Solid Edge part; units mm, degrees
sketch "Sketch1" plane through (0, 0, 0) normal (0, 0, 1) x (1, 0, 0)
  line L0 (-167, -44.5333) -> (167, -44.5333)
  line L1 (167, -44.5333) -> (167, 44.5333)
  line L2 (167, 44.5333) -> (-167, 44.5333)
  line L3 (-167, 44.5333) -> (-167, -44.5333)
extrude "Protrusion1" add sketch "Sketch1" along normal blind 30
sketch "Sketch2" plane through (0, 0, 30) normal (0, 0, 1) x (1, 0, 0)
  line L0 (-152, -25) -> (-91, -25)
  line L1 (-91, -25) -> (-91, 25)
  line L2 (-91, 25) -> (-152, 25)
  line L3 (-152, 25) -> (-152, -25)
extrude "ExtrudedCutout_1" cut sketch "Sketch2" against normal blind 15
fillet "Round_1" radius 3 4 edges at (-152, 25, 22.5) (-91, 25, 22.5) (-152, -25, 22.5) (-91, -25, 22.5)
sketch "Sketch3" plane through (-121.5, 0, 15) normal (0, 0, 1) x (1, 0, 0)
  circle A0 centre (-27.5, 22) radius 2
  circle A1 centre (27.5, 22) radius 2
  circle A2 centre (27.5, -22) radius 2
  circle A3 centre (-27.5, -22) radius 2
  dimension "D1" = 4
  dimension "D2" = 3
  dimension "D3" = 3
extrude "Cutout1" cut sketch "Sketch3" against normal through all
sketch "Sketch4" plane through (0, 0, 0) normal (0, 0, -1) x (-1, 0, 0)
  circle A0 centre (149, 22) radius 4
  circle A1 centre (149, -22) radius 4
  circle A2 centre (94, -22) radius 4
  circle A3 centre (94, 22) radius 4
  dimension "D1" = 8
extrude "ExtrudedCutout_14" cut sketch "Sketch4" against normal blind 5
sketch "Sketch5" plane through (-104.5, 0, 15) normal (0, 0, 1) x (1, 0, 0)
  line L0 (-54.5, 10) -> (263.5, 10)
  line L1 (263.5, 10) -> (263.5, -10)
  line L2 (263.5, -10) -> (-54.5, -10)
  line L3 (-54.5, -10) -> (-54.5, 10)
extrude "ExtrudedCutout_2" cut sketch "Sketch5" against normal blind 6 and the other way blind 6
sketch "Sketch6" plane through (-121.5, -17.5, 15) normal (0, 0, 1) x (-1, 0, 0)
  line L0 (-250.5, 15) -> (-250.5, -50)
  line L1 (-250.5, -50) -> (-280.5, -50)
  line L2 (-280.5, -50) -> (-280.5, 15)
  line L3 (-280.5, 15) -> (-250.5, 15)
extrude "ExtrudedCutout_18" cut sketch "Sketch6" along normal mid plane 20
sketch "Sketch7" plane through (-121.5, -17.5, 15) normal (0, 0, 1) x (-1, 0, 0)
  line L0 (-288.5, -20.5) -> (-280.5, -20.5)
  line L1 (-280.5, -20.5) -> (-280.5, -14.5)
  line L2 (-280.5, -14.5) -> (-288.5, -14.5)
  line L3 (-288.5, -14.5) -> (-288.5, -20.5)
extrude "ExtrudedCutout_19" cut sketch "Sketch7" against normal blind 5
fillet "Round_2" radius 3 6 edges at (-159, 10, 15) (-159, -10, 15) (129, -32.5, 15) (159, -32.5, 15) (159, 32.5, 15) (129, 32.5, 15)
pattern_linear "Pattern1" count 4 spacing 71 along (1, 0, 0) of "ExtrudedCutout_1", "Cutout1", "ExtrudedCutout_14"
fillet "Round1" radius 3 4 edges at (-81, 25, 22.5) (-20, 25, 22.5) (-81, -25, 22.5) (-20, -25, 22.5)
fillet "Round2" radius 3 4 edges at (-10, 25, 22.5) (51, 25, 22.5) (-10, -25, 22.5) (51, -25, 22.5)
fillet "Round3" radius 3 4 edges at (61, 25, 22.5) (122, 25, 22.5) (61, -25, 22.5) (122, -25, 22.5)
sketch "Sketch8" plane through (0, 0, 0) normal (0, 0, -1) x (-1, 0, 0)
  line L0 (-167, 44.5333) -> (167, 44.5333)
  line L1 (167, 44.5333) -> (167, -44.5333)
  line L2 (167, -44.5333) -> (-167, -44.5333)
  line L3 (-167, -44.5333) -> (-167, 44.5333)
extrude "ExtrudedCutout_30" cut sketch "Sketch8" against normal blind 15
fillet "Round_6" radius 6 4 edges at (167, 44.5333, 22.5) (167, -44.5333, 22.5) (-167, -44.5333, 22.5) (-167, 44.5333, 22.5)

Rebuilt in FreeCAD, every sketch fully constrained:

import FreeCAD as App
import Part
import Sketcher

V = App.Vector


def edges_at(feature, points):
    """Names of the edges that pass closest to the given points."""
    edges = feature.Shape.Edges
    near = lambda p: min(range(len(edges)), key=lambda i: edges[i].distToShape(Part.Vertex(*p))[0])
    return sorted({f"Edge{near(p) + 1}" for p in points})

doc = App.newDocument("Part")
body = doc.addObject("PartDesign::Body", "Body")

# Sketch on XY plane
sketch1 = body.newObject("Sketcher::SketchObject", "Sketch")
sketch1.AttachmentSupport = (doc.getObject("XY_Plane"), [""])
sketch1.MapMode = "FlatFace"
sketch1.addGeometry([
    Part.LineSegment(V(-167, 45, 0), V(-167, -45, 0)),
    Part.LineSegment(V(-167, -45, 0), V(167, -45, 0)),
    Part.LineSegment(V(167, -45, 0), V(167, 45, 0)),
    Part.LineSegment(V(167, 45, 0), V(-167, 45, 0)),
], False)
sketch1.addConstraint([
    Sketcher.Constraint("Coincident", 0, 2, 1, 1),
    Sketcher.Constraint("Coincident", 1, 2, 2, 1),
    Sketcher.Constraint("Coincident", 2, 2, 3, 1),
    Sketcher.Constraint("Coincident", 3, 2, 0, 1),
    Sketcher.Constraint("Vertical", 0),
    Sketcher.Constraint("Horizontal", 1),
    Sketcher.Constraint("Vertical", 2),
    Sketcher.Constraint("Horizontal", 3),
    Sketcher.Constraint("Symmetric", 0, 2, 2, 2, -1, 1),
    Sketcher.Constraint("DistanceX", 1, 1, 1, 2, 334.0),
    Sketcher.Constraint("DistanceY", 0, 2, 0, 1, 89.0666),
])
pad1 = body.newObject("PartDesign::Pad", "Pad")
pad1.Profile = sketch1
pad1.Length = 30

# Sketch on XY plane
sketch2 = body.newObject("Sketcher::SketchObject", "Sketch001")
sketch2.AttachmentSupport = (doc.getObject("XY_Plane"), [""])
sketch2.MapMode = "FlatFace"
sketch2.AttachmentOffset = App.Placement(V(0, 0, 30), App.Rotation())
sketch2.addGeometry([
    Part.LineSegment(V(-152, 25, 0), V(-152, -25, 0)),
    Part.LineSegment(V(-152, -25, 0), V(-91, -25, 0)),
    Part.LineSegment(V(-91, -25, 0), V(-91, 25, 0)),
    Part.LineSegment(V(-91, 25, 0), V(-152, 25, 0)),
], False)
sketch2.addConstraint([
    Sketcher.Constraint("Coincident", 0, 2, 1, 1),
    Sketcher.Constraint("Coincident", 1, 2, 2, 1),
    Sketcher.Constraint("Coincident", 2, 2, 3, 1),
    Sketcher.Constraint("Coincident", 3, 2, 0, 1),
    Sketcher.Constraint("Vertical", 0),
    Sketcher.Constraint("Horizontal", 1),
    Sketcher.Constraint("Vertical", 2),
    Sketcher.Constraint("Horizontal", 3),
    Sketcher.Constraint("DistanceX", 1, 1, 1, 2, 61.0),
    Sketcher.Constraint("DistanceY", 0, 2, 0, 1, 50.0),
    Sketcher.Constraint("DistanceX", 0, 2, -1, 1, 152.0),
    Sketcher.Constraint("DistanceY", 0, 2, -1, 1, 25.0),
])
pocket1 = body.newObject("PartDesign::Pocket", "Pocket")
pocket1.Profile = sketch2
pocket1.Length = 15
doc.recompute()

fillet = body.newObject("PartDesign::Fillet", "Fillet")
fillet.Base = (pocket1, edges_at(pocket1, [
    (-152, 25, 22.5),
    (-91, 25, 22.5),
    (-152, -25, 22.5),
    (-91, -25, 22.5),
]))
fillet.Radius = 3

# Sketch on XY plane
sketch3 = body.newObject("Sketcher::SketchObject", "Sketch002")
sketch3.AttachmentSupport = (doc.getObject("XY_Plane"), [""])
sketch3.MapMode = "FlatFace"
sketch3.AttachmentOffset = App.Placement(V(0, 0, 15), App.Rotation())
sketch3.addGeometry([
    Part.Circle(V(-149, 22, 0), V(0, 0, 1), 2),
    Part.Circle(V(-94, 22, 0), V(0, 0, 1), 2),
    Part.Circle(V(-94, -22, 0), V(0, 0, 1), 2),
    Part.Circle(V(-149, -22, 0), V(0, 0, 1), 2),
], False)
sketch3.addConstraint([
    Sketcher.Constraint("Equal", 0, 1),
    Sketcher.Constraint("Equal", 1, 2),
    Sketcher.Constraint("Equal", 2, 3),
    Sketcher.Constraint("Symmetric", 1, 3, 2, 3, -1),
    Sketcher.Constraint("Symmetric", 0, 3, 3, 3, -1),
    Sketcher.Constraint("Horizontal", 0, 3, 1, 3),
    Sketcher.Constraint("Diameter", 0, 4.0),
    Sketcher.Constraint("DistanceX", 0, 3, -1, 1, 149.0),
    Sketcher.Constraint("DistanceY", -1, 1, 0, 3, 22.0),
    Sketcher.Constraint("DistanceX", 1, 3, -1, 1, 94.0),
])
pocket2 = body.newObject("PartDesign::Pocket", "Pocket001")
pocket2.Profile = sketch3
pocket2.Type = "ThroughAll"

# Sketch on XY plane
sketch4 = body.newObject("Sketcher::SketchObject", "Sketch003")
sketch4.AttachmentSupport = (doc.getObject("XY_Plane"), [""])
sketch4.MapMode = "FlatFace"
sketch4.addGeometry([
    Part.Circle(V(-149, 22, 0), V(0, 0, 1), 4),
    Part.Circle(V(-149, -22, 0), V(0, 0, 1), 4),
    Part.Circle(V(-94, -22, 0), V(0, 0, 1), 4),
    Part.Circle(V(-94, 22, 0), V(0, 0, 1), 4),
], False)
sketch4.addConstraint([
    Sketcher.Constraint("Equal", 0, 1),
    Sketcher.Constraint("Equal", 1, 2),
    Sketcher.Constraint("Equal", 2, 3),
    Sketcher.Constraint("Symmetric", 0, 3, 1, 3, -1),
    Sketcher.Constraint("Symmetric", 2, 3, 3, 3, -1),
    Sketcher.Constraint("Horizontal", 1, 3, 2, 3),
    Sketcher.Constraint("Diameter", 0, 8.0),
    Sketcher.Constraint("DistanceX", 0, 3, -1, 1, 149.0),
    Sketcher.Constraint("DistanceY", -1, 1, 0, 3, 22.0),
    Sketcher.Constraint("DistanceX", 2, 3, -1, 1, 94.0),
])
pocket3 = body.newObject("PartDesign::Pocket", "Pocket002")
pocket3.Profile = sketch4
pocket3.Length = 5
pocket3.Reversed = True

# Sketch on XY plane
sketch5 = body.newObject("Sketcher::SketchObject", "Sketch004")
sketch5.AttachmentSupport = (doc.getObject("XY_Plane"), [""])
sketch5.MapMode = "FlatFace"
sketch5.AttachmentOffset = App.Placement(V(0, 0, 15), App.Rotation())
sketch5.addGeometry([
    Part.LineSegment(V(159, 10, 0), V(-159, 10, 0)),
    Part.LineSegment(V(-159, 10, 0), V(-159, -10, 0)),
    Part.LineSegment(V(-159, -10, 0), V(159, -10, 0)),
    Part.LineSegment(V(159, -10, 0), V(159, 10, 0)),
], False)
sketch5.addConstraint([
    Sketcher.Constraint("Coincident", 0, 2, 1, 1),
    Sketcher.Constraint("Coincident", 1, 2, 2, 1),
    Sketcher.Constraint("Coincident", 2, 2, 3, 1),
    Sketcher.Constraint("Coincident", 3, 2, 0, 1),
    Sketcher.Constraint("Horizontal", 0),
    Sketcher.Constraint("Vertical", 1),
    Sketcher.Constraint("Horizontal", 2),
    Sketcher.Constraint("Vertical", 3),
    Sketcher.Constraint("Symmetric", 0, 2, 2, 2, -1, 1),
    Sketcher.Constraint("DistanceX", 0, 2, 0, 1, 318.0),
    Sketcher.Constraint("DistanceY", 1, 2, 1, 1, 20.0),
])
pocket4 = body.newObject("PartDesign::Pocket", "Pocket003")
pocket4.Profile = sketch5
pocket4.Type = "TwoLengths"
pocket4.Length = 6
pocket4.Length2 = 6

# Sketch on XY plane
sketch6 = body.newObject("Sketcher::SketchObject", "Sketch005")
sketch6.AttachmentSupport = (doc.getObject("XY_Plane"), [""])
sketch6.MapMode = "FlatFace"
sketch6.AttachmentOffset = App.Placement(V(0, 0, 15), App.Rotation())
sketch6.addGeometry([
    Part.LineSegment(V(129, 32, 0), V(129, -32, 0)),
    Part.LineSegment(V(129, -32, 0), V(159, -32, 0)),
    Part.LineSegment(V(159, -32, 0), V(159, 32, 0)),
    Part.LineSegment(V(159, 32, 0), V(129, 32, 0)),
], False)
sketch6.addConstraint([
    Sketcher.Constraint("Coincident", 0, 2, 1, 1),
    Sketcher.Constraint("Coincident", 1, 2, 2, 1),
    Sketcher.Constraint("Coincident", 2, 2, 3, 1),
    Sketcher.Constraint("Coincident", 3, 2, 0, 1),
    Sketcher.Constraint("Vertical", 0),
    Sketcher.Constraint("Horizontal", 1),
    Sketcher.Constraint("Vertical", 2),
    Sketcher.Constraint("Horizontal", 3),
    Sketcher.Constraint("DistanceX", 1, 1, 1, 2, 30.0),
    Sketcher.Constraint("DistanceY", 0, 2, 0, 1, 65.0),
    Sketcher.Constraint("DistanceX", -1, 1, 0, 2, 129.0),
    Sketcher.Constraint("DistanceY", 0, 2, -1, 1, 32.5),
])
pocket5 = body.newObject("PartDesign::Pocket", "Pocket004")
pocket5.Profile = sketch6
pocket5.Length = 20
pocket5.Midplane = True

# Sketch on XY plane
sketch7 = body.newObject("Sketcher::SketchObject", "Sketch006")
sketch7.AttachmentSupport = (doc.getObject("XY_Plane"), [""])
sketch7.MapMode = "FlatFace"
sketch7.AttachmentOffset = App.Placement(V(0, 0, 15), App.Rotation())
sketch7.addGeometry([
    Part.LineSegment(V(167, -3, 0), V(167, 3, 0)),
    Part.LineSegment(V(167, 3, 0), V(159, 3, 0)),
    Part.LineSegment(V(159, 3, 0), V(159, -3, 0)),
    Part.LineSegment(V(159, -3, 0), V(167, -3, 0)),
], False)
sketch7.addConstraint([
    Sketcher.Constraint("Coincident", 0, 2, 1, 1),
    Sketcher.Constraint("Coincident", 1, 2, 2, 1),
    Sketcher.Constraint("Coincident", 2, 2, 3, 1),
    Sketcher.Constraint("Coincident", 3, 2, 0, 1),
    Sketcher.Constraint("Vertical", 0),
    Sketcher.Constraint("Horizontal", 1),
    Sketcher.Constraint("Vertical", 2),
    Sketcher.Constraint("Horizontal", 3),
    Sketcher.Constraint("DistanceX", 1, 2, 1, 1, 8.0),
    Sketcher.Constraint("DistanceY", 0, 1, 0, 2, 6.0),
    Sketcher.Constraint("DistanceX", -1, 1, 0, 2, 167.0),
    Sketcher.Constraint("DistanceY", -1, 1, 0, 2, 3.0),
])
pocket6 = body.newObject("PartDesign::Pocket", "Pocket005")
pocket6.Profile = sketch7
pocket6.Length = 5
doc.recompute()

fillet2 = body.newObject("PartDesign::Fillet", "Fillet001")
fillet2.Base = (pocket6, edges_at(pocket6, [
    (-159, 10, 15),
    (-159, -10, 15),
    (129, -32.5, 15),
    (159, -32.5, 15),
    (159, 32.5, 15),
    (129, 32.5, 15),
]))
fillet2.Radius = 3
doc.recompute()

linearpattern = body.newObject("PartDesign::LinearPattern", "LinearPattern")
linearpattern.Originals = [pocket1, pocket2, pocket3]
linearpattern.Direction = (doc.getObject("X_Axis"), [""])
linearpattern.Mode = "offset"
linearpattern.Offset = 71
linearpattern.Occurrences = 4
body.Tip = linearpattern
doc.recompute()

fillet3 = body.newObject("PartDesign::Fillet", "Fillet002")
fillet3.Base = (linearpattern, edges_at(linearpattern, [
    (-81, 25, 22.5),
    (-20, 25, 22.5),
    (-81, -25, 22.5),
    (-20, -25, 22.5),
]))
fillet3.Radius = 3
doc.recompute()

fillet4 = body.newObject("PartDesign::Fillet", "Fillet003")
fillet4.Base = (fillet3, edges_at(fillet3, [
    (-10, 25, 22.5),
    (51, 25, 22.5),
    (-10, -25, 22.5),
    (51, -25, 22.5),
]))
fillet4.Radius = 3
doc.recompute()

fillet5 = body.newObject("PartDesign::Fillet", "Fillet004")
fillet5.Base = (fillet4, edges_at(fillet4, [
    (61, 25, 22.5),
    (122, 25, 22.5),
    (61, -25, 22.5),
    (122, -25, 22.5),
]))
fillet5.Radius = 3

# Sketch on XY plane
sketch8 = body.newObject("Sketcher::SketchObject", "Sketch007")
sketch8.AttachmentSupport = (doc.getObject("XY_Plane"), [""])
sketch8.MapMode = "FlatFace"
sketch8.addGeometry([
    Part.LineSegment(V(-167, 45, 0), V(167, 45, 0)),
    Part.LineSegment(V(167, 45, 0), V(167, -45, 0)),
    Part.LineSegment(V(167, -45, 0), V(-167, -45, 0)),
    Part.LineSegment(V(-167, -45, 0), V(-167, 45, 0)),
], False)
sketch8.addConstraint([
    Sketcher.Constraint("Coincident", 0, 2, 1, 1),
    Sketcher.Constraint("Coincident", 1, 2, 2, 1),
    Sketcher.Constraint("Coincident", 2, 2, 3, 1),
    Sketcher.Constraint("Coincident", 3, 2, 0, 1),
    Sketcher.Constraint("Horizontal", 0),
    Sketcher.Constraint("Vertical", 1),
    Sketcher.Constraint("Horizontal", 2),
    Sketcher.Constraint("Vertical", 3),
    Sketcher.Constraint("Symmetric", 0, 2, 2, 2, -1, 1),
    Sketcher.Constraint("DistanceX", 0, 1, 0, 2, 334.0),
    Sketcher.Constraint("DistanceY", 1, 2, 1, 1, 89.0666),
])
pocket7 = body.newObject("PartDesign::Pocket", "Pocket006")
pocket7.Profile = sketch8
pocket7.Length = 15
pocket7.Reversed = True
doc.recompute()

fillet6 = body.newObject("PartDesign::Fillet", "Fillet005")
fillet6.Base = (pocket7, edges_at(pocket7, [
    (167, 44.533, 22.5),
    (167, -44.533, 22.5),
    (-167, -44.533, 22.5),
    (-167, 44.533, 22.5),
]))
fillet6.Radius = 6

doc.recompute()
